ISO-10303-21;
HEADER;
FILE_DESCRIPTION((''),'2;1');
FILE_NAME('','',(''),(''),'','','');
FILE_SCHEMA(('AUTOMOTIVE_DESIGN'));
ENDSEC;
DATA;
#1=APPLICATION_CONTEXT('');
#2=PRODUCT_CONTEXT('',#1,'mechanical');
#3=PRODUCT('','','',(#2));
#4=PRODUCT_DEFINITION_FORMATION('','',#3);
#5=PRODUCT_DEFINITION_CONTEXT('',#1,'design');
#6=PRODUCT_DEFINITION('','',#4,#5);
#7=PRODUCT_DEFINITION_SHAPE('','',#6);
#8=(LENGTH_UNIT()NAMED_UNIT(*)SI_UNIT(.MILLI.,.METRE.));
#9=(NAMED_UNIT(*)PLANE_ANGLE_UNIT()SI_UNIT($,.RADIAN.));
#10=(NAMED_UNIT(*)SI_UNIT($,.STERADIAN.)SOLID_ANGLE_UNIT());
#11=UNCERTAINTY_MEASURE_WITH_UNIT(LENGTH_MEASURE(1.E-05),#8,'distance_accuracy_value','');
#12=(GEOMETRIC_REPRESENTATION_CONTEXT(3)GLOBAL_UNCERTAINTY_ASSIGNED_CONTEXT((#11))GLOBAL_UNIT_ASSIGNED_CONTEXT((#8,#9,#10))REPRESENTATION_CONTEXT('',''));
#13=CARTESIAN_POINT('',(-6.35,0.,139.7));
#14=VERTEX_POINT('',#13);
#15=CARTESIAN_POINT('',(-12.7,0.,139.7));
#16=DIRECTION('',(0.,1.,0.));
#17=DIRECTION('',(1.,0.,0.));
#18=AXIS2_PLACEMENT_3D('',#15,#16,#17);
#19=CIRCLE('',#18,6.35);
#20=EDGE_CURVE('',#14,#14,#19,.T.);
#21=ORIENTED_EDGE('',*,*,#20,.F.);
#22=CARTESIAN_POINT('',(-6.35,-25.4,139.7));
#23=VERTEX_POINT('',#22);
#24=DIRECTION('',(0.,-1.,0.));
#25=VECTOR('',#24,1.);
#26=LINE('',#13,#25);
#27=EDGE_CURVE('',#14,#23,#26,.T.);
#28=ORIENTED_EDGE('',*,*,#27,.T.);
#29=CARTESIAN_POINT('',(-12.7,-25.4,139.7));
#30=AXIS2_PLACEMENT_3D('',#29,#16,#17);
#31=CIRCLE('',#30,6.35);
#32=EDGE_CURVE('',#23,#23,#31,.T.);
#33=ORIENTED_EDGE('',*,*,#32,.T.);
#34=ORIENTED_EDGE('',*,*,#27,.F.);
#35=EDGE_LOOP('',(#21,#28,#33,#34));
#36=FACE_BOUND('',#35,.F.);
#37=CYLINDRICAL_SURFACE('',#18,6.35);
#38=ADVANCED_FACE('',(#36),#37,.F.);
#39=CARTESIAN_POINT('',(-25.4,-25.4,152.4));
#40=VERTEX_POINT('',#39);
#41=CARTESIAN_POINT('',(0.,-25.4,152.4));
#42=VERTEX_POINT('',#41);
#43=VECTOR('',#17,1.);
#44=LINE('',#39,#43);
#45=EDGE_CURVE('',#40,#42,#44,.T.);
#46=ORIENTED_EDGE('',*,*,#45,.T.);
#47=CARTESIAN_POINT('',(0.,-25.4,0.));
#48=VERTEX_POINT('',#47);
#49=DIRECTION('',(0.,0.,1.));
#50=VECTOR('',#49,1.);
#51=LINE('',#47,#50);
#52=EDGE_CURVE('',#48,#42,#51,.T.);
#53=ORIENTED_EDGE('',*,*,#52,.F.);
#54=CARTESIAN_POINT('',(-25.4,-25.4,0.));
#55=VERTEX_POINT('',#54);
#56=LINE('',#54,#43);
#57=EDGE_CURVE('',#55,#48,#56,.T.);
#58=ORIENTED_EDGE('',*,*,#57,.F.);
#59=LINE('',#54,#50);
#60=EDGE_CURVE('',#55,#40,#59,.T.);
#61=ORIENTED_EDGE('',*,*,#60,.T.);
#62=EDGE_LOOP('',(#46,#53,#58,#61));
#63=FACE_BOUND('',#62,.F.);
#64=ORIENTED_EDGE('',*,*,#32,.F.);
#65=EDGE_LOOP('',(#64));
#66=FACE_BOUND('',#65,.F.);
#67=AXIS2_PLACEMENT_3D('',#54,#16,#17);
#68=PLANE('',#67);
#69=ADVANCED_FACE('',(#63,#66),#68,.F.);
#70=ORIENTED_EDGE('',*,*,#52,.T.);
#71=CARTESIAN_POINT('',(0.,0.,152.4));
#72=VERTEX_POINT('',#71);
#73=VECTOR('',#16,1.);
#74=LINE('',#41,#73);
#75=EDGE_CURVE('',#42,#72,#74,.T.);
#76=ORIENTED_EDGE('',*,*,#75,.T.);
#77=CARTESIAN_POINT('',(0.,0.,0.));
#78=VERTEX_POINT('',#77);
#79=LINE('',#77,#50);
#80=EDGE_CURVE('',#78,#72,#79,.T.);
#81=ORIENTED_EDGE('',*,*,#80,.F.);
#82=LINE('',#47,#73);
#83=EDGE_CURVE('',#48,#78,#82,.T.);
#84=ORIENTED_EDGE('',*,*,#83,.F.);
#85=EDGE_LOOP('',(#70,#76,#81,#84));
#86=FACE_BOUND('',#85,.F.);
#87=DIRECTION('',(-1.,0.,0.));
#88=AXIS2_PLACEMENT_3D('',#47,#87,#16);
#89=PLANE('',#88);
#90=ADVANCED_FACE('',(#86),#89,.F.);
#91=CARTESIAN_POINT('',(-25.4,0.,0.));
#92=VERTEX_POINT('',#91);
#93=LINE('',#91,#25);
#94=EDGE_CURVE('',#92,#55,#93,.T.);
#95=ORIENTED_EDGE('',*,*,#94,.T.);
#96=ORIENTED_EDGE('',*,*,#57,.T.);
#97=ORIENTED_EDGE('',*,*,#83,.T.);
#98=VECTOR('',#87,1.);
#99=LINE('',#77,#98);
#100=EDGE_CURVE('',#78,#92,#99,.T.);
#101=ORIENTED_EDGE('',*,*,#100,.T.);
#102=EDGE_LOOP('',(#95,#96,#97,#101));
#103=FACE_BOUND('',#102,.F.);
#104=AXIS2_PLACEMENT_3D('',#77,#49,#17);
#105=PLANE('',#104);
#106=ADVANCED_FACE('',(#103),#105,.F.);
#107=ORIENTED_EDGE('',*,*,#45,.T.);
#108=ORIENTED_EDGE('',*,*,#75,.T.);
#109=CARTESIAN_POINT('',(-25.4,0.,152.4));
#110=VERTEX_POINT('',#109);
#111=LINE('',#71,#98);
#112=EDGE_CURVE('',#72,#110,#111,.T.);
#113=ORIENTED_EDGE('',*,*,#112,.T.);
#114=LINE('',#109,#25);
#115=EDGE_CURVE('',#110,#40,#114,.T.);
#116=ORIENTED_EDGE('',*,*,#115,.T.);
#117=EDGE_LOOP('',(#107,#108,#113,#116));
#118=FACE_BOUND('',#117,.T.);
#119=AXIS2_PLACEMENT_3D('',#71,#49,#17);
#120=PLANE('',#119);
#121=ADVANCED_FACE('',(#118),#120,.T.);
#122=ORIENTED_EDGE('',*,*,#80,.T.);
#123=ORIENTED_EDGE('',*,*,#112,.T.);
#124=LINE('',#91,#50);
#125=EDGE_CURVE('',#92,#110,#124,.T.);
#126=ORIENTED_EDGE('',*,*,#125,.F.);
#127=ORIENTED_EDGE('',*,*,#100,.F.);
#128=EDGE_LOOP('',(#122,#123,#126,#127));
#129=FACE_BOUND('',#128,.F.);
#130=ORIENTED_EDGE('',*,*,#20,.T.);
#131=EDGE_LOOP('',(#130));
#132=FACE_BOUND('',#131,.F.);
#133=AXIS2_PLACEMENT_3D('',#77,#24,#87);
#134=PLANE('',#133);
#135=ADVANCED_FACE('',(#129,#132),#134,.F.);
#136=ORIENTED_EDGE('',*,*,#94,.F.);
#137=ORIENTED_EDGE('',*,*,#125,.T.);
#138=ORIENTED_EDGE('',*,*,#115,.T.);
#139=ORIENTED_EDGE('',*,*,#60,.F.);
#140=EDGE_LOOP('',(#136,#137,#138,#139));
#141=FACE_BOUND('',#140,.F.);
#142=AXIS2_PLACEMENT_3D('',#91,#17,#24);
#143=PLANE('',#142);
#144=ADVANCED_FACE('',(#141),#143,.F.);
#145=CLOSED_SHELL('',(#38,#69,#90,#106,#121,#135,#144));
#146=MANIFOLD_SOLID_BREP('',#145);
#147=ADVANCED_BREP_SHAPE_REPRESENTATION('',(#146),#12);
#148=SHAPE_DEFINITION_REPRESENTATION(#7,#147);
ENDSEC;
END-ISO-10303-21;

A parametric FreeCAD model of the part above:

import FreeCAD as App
import Part
import Sketcher
Q = App.Units.Quantity


def add_polygon(sketch, points):
    """Adds a closed chain of lines whose ends are joined by coincident constraints."""
    first, n = sketch.GeometryCount, len(points)
    for a, b in zip(points, points[1:] + points[:1]):
        sketch.addGeometry(Part.LineSegment(App.Vector(*a, 0), App.Vector(*b, 0)), False)
    for i in range(n):
        sketch.addConstraint(Sketcher.Constraint("Coincident", first + i, 2, first + (i + 1) % n, 1))

doc = App.newDocument("Part")
body = doc.addObject("PartDesign::Body", "Body")

# Sketch on XY plane
sketch1 = body.newObject("Sketcher::SketchObject", "Sketch")
sketch1.AttachmentSupport = (doc.getObject("XY_Plane"), [""])
sketch1.MapMode = "FlatFace"
add_polygon(sketch1, [(0, -25), (0, 0), (-25, 0), (-25, -25)])  # lines 0-3
sketch1.addConstraint([
    Sketcher.Constraint("Vertical", 0),
    Sketcher.Constraint("Horizontal", 1),
    Sketcher.Constraint("Vertical", 2),
    Sketcher.Constraint("Horizontal", 3),
    Sketcher.Constraint("Coincident", 0, 2, -1, 1),
    Sketcher.Constraint("Equal", 3, 0),
    Sketcher.Constraint("DistanceX", 1, 2, 1, 1, Q("1 in")),
])
pad1 = body.newObject("PartDesign::Pad", "Pad")
pad1.Profile = sketch1
pad1.Length = Q("6 in")

# Sketch on XZ plane
sketch2 = body.newObject("Sketcher::SketchObject", "Sketch001")
sketch2.AttachmentSupport = (doc.getObject("XZ_Plane"), [""])
sketch2.MapMode = "FlatFace"
sketch2.addGeometry(Part.Circle(App.Vector(-13, 140, 0), App.Vector(0, 0, 1), 6), False)
sketch2.addConstraint([
    Sketcher.Constraint("Diameter", 0, Q("0.5 in")),
    Sketcher.Constraint("DistanceX", 0, 3, -1, 1, Q("0.5 in")),
    Sketcher.Constraint("DistanceY", -1, 1, 0, 3, Q("5.5 in")),
])
pocket1 = body.newObject("PartDesign::Pocket", "Pocket")
pocket1.Profile = sketch2
pocket1.Length = Q("3 in")
pocket1.Reversed = True

doc.recompute()
